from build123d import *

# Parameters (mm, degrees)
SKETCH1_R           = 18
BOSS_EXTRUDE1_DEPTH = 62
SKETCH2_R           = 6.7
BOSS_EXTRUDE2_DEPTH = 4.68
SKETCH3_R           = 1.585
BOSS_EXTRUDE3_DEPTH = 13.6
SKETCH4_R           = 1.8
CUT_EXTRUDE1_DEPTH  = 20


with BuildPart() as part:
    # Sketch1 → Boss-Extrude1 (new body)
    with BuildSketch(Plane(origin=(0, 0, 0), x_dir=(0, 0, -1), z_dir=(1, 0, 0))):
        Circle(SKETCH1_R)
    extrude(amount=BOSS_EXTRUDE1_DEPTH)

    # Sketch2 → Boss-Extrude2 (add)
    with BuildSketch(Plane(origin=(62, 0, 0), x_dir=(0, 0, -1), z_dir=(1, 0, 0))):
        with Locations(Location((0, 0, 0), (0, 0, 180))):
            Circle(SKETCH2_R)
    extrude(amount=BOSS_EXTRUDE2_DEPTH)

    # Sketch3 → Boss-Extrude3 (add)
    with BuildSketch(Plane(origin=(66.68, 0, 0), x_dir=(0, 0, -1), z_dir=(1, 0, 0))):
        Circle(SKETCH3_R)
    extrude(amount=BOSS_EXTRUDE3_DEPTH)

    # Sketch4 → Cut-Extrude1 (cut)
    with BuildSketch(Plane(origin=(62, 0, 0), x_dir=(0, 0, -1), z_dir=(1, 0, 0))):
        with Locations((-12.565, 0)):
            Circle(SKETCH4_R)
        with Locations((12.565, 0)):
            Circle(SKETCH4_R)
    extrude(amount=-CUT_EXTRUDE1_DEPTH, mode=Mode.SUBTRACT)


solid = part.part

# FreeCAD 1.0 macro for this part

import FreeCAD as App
import Part
import Sketcher
Q = App.Units.Quantity

doc = App.newDocument("Part")
body = doc.addObject("PartDesign::Body", "Body")

# Sketch on YZ plane
sketch1 = body.newObject("Sketcher::SketchObject", "Sketch")
sketch1.AttachmentSupport = (doc.getObject("YZ_Plane"), [""])
sketch1.MapMode = "FlatFace"
sketch1.addGeometry(Part.Circle(App.Vector(0, 0, 0), App.Vector(0, 0, 1), 18), False)
sketch1.addConstraint(Sketcher.Constraint("Coincident", 0, 3, -1, 1))
sketch1.addConstraint(Sketcher.Constraint("Diameter", 0, Q("36 mm")))
pad1 = body.newObject("PartDesign::Pad", "Pad")
pad1.Profile = sketch1
pad1.Length = 62

# Sketch on YZ plane
sketch2 = body.newObject("Sketcher::SketchObject", "Sketch001")
sketch2.AttachmentSupport = (doc.getObject("YZ_Plane"), [""])
sketch2.MapMode = "FlatFace"
sketch2.AttachmentOffset = App.Placement(App.Vector(0, 0, 62), App.Rotation())
sketch2.addGeometry(Part.Circle(App.Vector(0, 0, 0), App.Vector(0, 0, 1), 6.7), False)
sketch2.addConstraint(Sketcher.Constraint("Coincident", 0, 3, -1, 1))
sketch2.addConstraint(Sketcher.Constraint("Diameter", 0, Q("13.4 mm")))
pad2 = body.newObject("PartDesign::Pad", "Pad001")
pad2.Profile = sketch2
pad2.Length = 4.68

# Sketch on YZ plane
sketch3 = body.newObject("Sketcher::SketchObject", "Sketch002")
sketch3.AttachmentSupport = (doc.getObject("YZ_Plane"), [""])
sketch3.MapMode = "FlatFace"
sketch3.AttachmentOffset = App.Placement(App.Vector(0, 0, 66.68), App.Rotation())
sketch3.addGeometry(Part.Circle(App.Vector(0, 0, 0), App.Vector(0, 0, 1), 1.585), False)
sketch3.addConstraint(Sketcher.Constraint("Coincident", 0, 3, -1, 1))
sketch3.addConstraint(Sketcher.Constraint("Diameter", 0, Q("3.17 mm")))
pad3 = body.newObject("PartDesign::Pad", "Pad002")
pad3.Profile = sketch3
pad3.Length = 13.6

# Sketch on YZ plane
sketch4 = body.newObject("Sketcher::SketchObject", "Sketch003")
sketch4.AttachmentSupport = (doc.getObject("YZ_Plane"), [""])
sketch4.MapMode = "FlatFace"
sketch4.AttachmentOffset = App.Placement(App.Vector(0, 0, 62), App.Rotation())
sketch4.addGeometry(Part.Circle(App.Vector(0, 12.565, 0), App.Vector(0, 0, 1), 1.8), False)
sketch4.addGeometry(Part.Circle(App.Vector(0, -12.565, 0), App.Vector(0, 0, 1), 1.8), False)
sketch4.addConstraint(Sketcher.Constraint("Equal", 0, 1))
sketch4.addConstraint(Sketcher.Constraint("Symmetric", 0, 3, 1, 3, -1, 1))
sketch4.addConstraint(Sketcher.Constraint("PointOnObject", 0, 3, -2))
sketch4.addConstraint(Sketcher.Constraint("Diameter", 0, Q("3.6 mm")))
sketch4.addConstraint(Sketcher.Constraint("DistanceY", 1, 3, 0, 3, Q("25.13 mm")))
pocket1 = body.newObject("PartDesign::Pocket", "Pocket")
pocket1.Profile = sketch4
pocket1.Length = 20

doc.recompute()
